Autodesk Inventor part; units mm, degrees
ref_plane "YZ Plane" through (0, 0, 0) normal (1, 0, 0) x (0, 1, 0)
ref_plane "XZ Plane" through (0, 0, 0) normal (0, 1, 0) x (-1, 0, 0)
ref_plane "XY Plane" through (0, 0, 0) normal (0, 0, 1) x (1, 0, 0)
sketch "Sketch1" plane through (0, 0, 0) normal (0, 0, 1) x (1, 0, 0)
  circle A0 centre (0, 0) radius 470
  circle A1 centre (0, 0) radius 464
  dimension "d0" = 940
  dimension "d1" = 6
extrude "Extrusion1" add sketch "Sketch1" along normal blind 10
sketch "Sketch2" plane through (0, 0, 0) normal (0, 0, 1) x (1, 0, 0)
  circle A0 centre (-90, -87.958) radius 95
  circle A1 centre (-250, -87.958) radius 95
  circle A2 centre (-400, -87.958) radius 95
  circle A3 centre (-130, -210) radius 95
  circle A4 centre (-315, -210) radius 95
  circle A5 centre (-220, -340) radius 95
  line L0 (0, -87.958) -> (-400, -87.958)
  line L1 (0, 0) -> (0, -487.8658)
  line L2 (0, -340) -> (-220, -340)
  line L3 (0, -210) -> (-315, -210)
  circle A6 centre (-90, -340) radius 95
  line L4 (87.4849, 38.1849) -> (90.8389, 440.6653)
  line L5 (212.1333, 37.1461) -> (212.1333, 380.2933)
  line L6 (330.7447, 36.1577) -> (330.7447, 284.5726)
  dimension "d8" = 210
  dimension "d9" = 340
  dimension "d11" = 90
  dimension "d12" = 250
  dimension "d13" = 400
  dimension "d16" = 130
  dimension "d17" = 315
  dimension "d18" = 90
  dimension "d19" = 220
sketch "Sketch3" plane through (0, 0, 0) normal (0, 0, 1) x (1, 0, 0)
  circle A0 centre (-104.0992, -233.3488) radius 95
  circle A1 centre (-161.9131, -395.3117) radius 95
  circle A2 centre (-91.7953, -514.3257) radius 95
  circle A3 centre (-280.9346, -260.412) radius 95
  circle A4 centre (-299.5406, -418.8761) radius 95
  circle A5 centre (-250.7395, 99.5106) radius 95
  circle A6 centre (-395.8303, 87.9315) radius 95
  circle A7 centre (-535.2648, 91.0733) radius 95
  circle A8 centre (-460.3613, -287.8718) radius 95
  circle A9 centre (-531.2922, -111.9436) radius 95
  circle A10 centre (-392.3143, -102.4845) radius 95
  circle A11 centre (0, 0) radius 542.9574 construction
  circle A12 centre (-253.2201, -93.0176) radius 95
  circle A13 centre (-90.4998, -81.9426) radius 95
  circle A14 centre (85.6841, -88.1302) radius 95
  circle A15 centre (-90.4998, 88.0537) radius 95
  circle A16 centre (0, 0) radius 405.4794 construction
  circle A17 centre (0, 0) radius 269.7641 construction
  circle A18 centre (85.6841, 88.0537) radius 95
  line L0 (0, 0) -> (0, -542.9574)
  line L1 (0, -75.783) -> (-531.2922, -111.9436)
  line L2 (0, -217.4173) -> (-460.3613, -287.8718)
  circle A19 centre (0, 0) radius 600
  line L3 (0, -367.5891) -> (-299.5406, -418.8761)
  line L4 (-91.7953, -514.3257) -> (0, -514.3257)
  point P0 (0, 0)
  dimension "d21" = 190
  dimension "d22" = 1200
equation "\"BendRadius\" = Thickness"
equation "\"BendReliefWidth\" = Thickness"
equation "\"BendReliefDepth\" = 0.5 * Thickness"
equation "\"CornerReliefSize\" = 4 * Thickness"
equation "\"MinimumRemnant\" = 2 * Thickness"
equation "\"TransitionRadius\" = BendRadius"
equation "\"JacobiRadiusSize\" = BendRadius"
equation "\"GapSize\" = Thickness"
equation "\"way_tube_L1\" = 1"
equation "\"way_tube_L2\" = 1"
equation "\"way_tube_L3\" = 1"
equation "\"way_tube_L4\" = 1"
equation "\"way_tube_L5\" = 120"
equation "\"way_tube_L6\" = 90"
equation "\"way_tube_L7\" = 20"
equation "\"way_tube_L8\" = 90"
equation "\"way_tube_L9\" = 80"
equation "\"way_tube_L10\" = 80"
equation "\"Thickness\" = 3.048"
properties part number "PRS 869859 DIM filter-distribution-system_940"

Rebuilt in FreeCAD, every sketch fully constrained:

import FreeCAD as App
import Part
import Sketcher
from FreeCAD import Vector
Q = App.Units.Quantity

doc = App.newDocument("Part")
body = doc.addObject("PartDesign::Body", "Body")

sketch1 = body.newObject("Sketcher::SketchObject", "Sketch")
sketch1.AttachmentSupport = (doc.getObject("XY_Plane"), [""])
sketch1.MapMode = "FlatFace"
sketch1.addGeometry(Part.Circle(Vector(0, 0, 0), Vector(0, 0, 1), 470), False)
sketch1.addGeometry(Part.Circle(Vector(0, 0, 0), Vector(0, 0, 1), 464), False)
sketch1.addConstraint(Sketcher.Constraint("Coincident", 0, 3, -1, 1))
sketch1.addConstraint(Sketcher.Constraint("Coincident", 1, 3, -1, 1))
sketch1.addConstraint(Sketcher.Constraint("Diameter", 0, Q("940 mm")))
sketch1.addConstraint(Sketcher.Constraint("Diameter", 1, Q("928 mm")))
pad1 = body.newObject("PartDesign::Pad", "Pad")
pad1.Profile = sketch1
pad1.Length = 10

doc.recompute()
